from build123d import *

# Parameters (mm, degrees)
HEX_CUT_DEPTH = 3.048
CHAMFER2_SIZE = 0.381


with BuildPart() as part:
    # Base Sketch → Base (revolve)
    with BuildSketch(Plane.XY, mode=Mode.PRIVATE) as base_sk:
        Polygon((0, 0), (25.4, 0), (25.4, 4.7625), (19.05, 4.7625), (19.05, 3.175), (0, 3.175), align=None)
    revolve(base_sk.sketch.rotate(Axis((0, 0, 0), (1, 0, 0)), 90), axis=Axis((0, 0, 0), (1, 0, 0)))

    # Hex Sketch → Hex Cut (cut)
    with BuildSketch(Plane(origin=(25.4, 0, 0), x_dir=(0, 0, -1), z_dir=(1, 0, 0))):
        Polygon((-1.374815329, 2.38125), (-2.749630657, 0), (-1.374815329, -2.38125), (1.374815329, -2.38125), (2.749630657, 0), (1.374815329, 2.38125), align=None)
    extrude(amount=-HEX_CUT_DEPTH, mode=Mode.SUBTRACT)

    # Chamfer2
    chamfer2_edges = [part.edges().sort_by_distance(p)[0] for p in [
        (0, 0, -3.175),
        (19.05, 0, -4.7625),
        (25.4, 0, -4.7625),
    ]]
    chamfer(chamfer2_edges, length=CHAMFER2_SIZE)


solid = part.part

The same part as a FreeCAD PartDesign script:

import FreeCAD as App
import Part
import Sketcher
from FreeCAD import Vector
Q = App.Units.Quantity


def edges_at(feature, points):
    """Names of the edges that pass closest to the given points."""
    edges = feature.Shape.Edges
    near = lambda p: min(range(len(edges)), key=lambda i: edges[i].distToShape(Part.Vertex(*p))[0])
    return sorted({f"Edge{near(p) + 1}" for p in points})


def add_polygon(sketch, points):
    """Adds a closed chain of lines whose ends are joined by coincident constraints."""
    first, n = sketch.GeometryCount, len(points)
    for a, b in zip(points, points[1:] + points[:1]):
        sketch.addGeometry(Part.LineSegment(App.Vector(*a, 0), App.Vector(*b, 0)), False)
    for i in range(n):
        sketch.addConstraint(Sketcher.Constraint("Coincident", first + i, 2, first + (i + 1) % n, 1))

doc = App.newDocument("Part")
body = doc.addObject("PartDesign::Body", "Body")

sketch1 = doc.addObject("Sketcher::SketchObject", "Sketch")
body.addObject(sketch1)
sketch1.AttachmentSupport = (doc.XY_Plane, [""])
sketch1.MapMode = "FlatFace"
add_polygon(sketch1, [(0, 0), (25.4, 0), (25.4, 4.8), (19.1, 4.8), (19.1, 3.2), (0, 3.2)])
sketch1.addConstraint([
    Sketcher.Constraint("Horizontal", 0),
    Sketcher.Constraint("Vertical", 1),
    Sketcher.Constraint("Horizontal", 2),
    Sketcher.Constraint("Vertical", 3),
    Sketcher.Constraint("Horizontal", 4),
    Sketcher.Constraint("Vertical", 5),
    Sketcher.Constraint("Coincident", 5, 2, -1, 1),
    Sketcher.Constraint("DistanceX", 0, 1, 0, 2, Q("1 in")),
    Sketcher.Constraint("DistanceX", 2, 2, 2, 1, Q("0.25 in")),
    Sketcher.Constraint("DistanceY", 1, 1, 1, 2, Q("0.1875 in")),
    Sketcher.Constraint("DistanceY", 3, 2, 3, 1, Q("0.0625 in")),
])
revolution = doc.addObject("PartDesign::Revolution", "Revolution")
body.addObject(revolution)
revolution.Profile = sketch1
revolution.ReferenceAxis = (sketch1, ["H_Axis"])
revolution.Angle = 360

sketch2 = doc.addObject("Sketcher::SketchObject", "Sketch001")
body.addObject(sketch2)
sketch2.AttachmentSupport = (doc.YZ_Plane, [""])
sketch2.MapMode = "FlatFace"
sketch2.AttachmentOffset = App.Placement(Vector(0, 0, 1 * 25.4), App.Rotation())
add_polygon(sketch2, [(2.4, 1.4), (0, 2.7), (-2.4, 1.4), (-2.4, -1.4), (0, -2.7), (2.4, -1.4)])
sketch2.addConstraint([
    Sketcher.Constraint("Vertical", 2),
    Sketcher.Constraint("Vertical", 5),
    Sketcher.Constraint("Symmetric", 0, 2, 3, 2, -1, 1),
    Sketcher.Constraint("Symmetric", 1, 2, 4, 2, -1, 1),
    Sketcher.Constraint("PointOnObject", 0, 2, -2),
    Sketcher.Constraint("Parallel", 0, 3),
    Sketcher.Constraint("Horizontal", 2, 2, 4, 2),
    Sketcher.Constraint("Angle", 0, Q("150 deg")),
    Sketcher.Constraint("DistanceX", 1, 2, -1, 1, Q("0.09375 in")),
    Sketcher.Constraint("DistanceY", 2, 2, 2, 1, Q("2.749631 mm")),
])
pocket1 = doc.addObject("PartDesign::Pocket", "Pocket")
body.addObject(pocket1)
pocket1.Profile = sketch2
pocket1.Length = Q("0.12 in")
doc.recompute()

chamfer = doc.addObject("PartDesign::Chamfer", "Chamfer")
body.addObject(chamfer)
chamfer.Base = (pocket1, edges_at(pocket1, [(0, 0, -3.175), (19.05, 0, -4.763), (25.4, 0, -4.763)]))
chamfer.Size = Q("0.015 in")

doc.recompute()
